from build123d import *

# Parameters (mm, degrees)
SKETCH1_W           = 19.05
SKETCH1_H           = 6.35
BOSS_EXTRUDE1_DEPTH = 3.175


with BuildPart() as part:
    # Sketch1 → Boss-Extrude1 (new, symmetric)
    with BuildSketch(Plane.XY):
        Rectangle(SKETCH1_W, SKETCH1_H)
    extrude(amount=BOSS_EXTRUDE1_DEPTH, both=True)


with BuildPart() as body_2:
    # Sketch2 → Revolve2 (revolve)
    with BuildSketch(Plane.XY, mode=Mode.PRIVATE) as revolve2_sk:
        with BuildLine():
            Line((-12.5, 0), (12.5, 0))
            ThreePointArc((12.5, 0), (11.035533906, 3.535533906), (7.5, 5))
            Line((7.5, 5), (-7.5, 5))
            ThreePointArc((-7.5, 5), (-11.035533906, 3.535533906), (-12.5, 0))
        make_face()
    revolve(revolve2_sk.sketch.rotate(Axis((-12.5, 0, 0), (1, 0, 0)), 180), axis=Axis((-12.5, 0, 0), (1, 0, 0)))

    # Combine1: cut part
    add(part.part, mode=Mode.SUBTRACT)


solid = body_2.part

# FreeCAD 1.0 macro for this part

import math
import FreeCAD as App
import Part
import Sketcher
Q = App.Units.Quantity


def add_polygon(sketch, points):
    """Adds a closed chain of lines whose ends are joined by coincident constraints."""
    first, n = sketch.GeometryCount, len(points)
    for a, b in zip(points, points[1:] + points[:1]):
        sketch.addGeometry(Part.LineSegment(App.Vector(*a, 0), App.Vector(*b, 0)), False)
    for i in range(n):
        sketch.addConstraint(Sketcher.Constraint("Coincident", first + i, 2, first + (i + 1) % n, 1))

doc = App.newDocument("Part")
body = doc.addObject("PartDesign::Body", "Body")

sketch1 = body.newObject("Sketcher::SketchObject", "Sketch")
sketch1.AttachmentSupport = (doc.getObject("XY_Plane"), [""])
sketch1.MapMode = "FlatFace"
add_polygon(sketch1, [(-10, 3), (-10, -3), (10, -3), (10, 3)])
sketch1.addConstraint([
    Sketcher.Constraint("Vertical", 0),
    Sketcher.Constraint("Horizontal", 1),
    Sketcher.Constraint("Vertical", 2),
    Sketcher.Constraint("Horizontal", 3),
    Sketcher.Constraint("Symmetric", 0, 2, 2, 2, -1, 1),
    Sketcher.Constraint("DistanceX", 1, 1, 1, 2, Q("19.05 mm")),
    Sketcher.Constraint("DistanceY", 0, 2, 0, 1, Q("6.35 mm")),
])
pad1 = body.newObject("PartDesign::Pad", "Pad")
pad1.Profile = sketch1
pad1.Length = 6.35
pad1.Midplane = True
body2 = doc.addObject("PartDesign::Body", "Body001")

sketch2 = body2.newObject("Sketcher::SketchObject", "Sketch001")
sketch2.AttachmentSupport = (doc.getObject("XY_Plane001"), [""])
sketch2.MapMode = "FlatFace"
sketch2.addGeometry([
    Part.LineSegment(App.Vector(-12, 0, 0), App.Vector(12, 0, 0)),
    Part.ArcOfCircle(Part.Circle(App.Vector(8, 0, 0), App.Vector(0, 0, 1), 5), math.radians(0), math.radians(90)),
    Part.LineSegment(App.Vector(8, 5, 0), App.Vector(-8, 5, 0)),
    Part.ArcOfCircle(Part.Circle(App.Vector(-8, 0, 0), App.Vector(0, 0, 1), 5), math.radians(90), math.radians(180)),
], False)
sketch2.addConstraint([
    Sketcher.Constraint("Coincident", 0, 2, 1, 1),
    Sketcher.Constraint("Tangent", 1, 2, 2, 1),
    Sketcher.Constraint("Tangent", 2, 2, 3, 1),
    Sketcher.Constraint("Coincident", 3, 2, 0, 1),
    Sketcher.Constraint("Horizontal", 0),
    Sketcher.Constraint("Horizontal", 2),
    Sketcher.Constraint("Equal", 1, 3),
    Sketcher.Constraint("Symmetric", 1, 3, 3, 3, -1, 1),
    Sketcher.Constraint("PointOnObject", 0, 2, -1),
    Sketcher.Constraint("Radius", 1, Q("5 mm")),
    Sketcher.Constraint("DistanceX", 0, 1, 0, 2, Q("25 mm")),
])
revolution = body2.newObject("PartDesign::Revolution", "Revolution")
revolution.Profile = sketch2
revolution.ReferenceAxis = (sketch2, ["H_Axis"])
revolution.Angle = 360
doc.recompute()

boolean = body2.newObject("PartDesign::Boolean", "Boolean")
boolean.Type = "Cut"
boolean.addObjects([body])

doc.recompute()
